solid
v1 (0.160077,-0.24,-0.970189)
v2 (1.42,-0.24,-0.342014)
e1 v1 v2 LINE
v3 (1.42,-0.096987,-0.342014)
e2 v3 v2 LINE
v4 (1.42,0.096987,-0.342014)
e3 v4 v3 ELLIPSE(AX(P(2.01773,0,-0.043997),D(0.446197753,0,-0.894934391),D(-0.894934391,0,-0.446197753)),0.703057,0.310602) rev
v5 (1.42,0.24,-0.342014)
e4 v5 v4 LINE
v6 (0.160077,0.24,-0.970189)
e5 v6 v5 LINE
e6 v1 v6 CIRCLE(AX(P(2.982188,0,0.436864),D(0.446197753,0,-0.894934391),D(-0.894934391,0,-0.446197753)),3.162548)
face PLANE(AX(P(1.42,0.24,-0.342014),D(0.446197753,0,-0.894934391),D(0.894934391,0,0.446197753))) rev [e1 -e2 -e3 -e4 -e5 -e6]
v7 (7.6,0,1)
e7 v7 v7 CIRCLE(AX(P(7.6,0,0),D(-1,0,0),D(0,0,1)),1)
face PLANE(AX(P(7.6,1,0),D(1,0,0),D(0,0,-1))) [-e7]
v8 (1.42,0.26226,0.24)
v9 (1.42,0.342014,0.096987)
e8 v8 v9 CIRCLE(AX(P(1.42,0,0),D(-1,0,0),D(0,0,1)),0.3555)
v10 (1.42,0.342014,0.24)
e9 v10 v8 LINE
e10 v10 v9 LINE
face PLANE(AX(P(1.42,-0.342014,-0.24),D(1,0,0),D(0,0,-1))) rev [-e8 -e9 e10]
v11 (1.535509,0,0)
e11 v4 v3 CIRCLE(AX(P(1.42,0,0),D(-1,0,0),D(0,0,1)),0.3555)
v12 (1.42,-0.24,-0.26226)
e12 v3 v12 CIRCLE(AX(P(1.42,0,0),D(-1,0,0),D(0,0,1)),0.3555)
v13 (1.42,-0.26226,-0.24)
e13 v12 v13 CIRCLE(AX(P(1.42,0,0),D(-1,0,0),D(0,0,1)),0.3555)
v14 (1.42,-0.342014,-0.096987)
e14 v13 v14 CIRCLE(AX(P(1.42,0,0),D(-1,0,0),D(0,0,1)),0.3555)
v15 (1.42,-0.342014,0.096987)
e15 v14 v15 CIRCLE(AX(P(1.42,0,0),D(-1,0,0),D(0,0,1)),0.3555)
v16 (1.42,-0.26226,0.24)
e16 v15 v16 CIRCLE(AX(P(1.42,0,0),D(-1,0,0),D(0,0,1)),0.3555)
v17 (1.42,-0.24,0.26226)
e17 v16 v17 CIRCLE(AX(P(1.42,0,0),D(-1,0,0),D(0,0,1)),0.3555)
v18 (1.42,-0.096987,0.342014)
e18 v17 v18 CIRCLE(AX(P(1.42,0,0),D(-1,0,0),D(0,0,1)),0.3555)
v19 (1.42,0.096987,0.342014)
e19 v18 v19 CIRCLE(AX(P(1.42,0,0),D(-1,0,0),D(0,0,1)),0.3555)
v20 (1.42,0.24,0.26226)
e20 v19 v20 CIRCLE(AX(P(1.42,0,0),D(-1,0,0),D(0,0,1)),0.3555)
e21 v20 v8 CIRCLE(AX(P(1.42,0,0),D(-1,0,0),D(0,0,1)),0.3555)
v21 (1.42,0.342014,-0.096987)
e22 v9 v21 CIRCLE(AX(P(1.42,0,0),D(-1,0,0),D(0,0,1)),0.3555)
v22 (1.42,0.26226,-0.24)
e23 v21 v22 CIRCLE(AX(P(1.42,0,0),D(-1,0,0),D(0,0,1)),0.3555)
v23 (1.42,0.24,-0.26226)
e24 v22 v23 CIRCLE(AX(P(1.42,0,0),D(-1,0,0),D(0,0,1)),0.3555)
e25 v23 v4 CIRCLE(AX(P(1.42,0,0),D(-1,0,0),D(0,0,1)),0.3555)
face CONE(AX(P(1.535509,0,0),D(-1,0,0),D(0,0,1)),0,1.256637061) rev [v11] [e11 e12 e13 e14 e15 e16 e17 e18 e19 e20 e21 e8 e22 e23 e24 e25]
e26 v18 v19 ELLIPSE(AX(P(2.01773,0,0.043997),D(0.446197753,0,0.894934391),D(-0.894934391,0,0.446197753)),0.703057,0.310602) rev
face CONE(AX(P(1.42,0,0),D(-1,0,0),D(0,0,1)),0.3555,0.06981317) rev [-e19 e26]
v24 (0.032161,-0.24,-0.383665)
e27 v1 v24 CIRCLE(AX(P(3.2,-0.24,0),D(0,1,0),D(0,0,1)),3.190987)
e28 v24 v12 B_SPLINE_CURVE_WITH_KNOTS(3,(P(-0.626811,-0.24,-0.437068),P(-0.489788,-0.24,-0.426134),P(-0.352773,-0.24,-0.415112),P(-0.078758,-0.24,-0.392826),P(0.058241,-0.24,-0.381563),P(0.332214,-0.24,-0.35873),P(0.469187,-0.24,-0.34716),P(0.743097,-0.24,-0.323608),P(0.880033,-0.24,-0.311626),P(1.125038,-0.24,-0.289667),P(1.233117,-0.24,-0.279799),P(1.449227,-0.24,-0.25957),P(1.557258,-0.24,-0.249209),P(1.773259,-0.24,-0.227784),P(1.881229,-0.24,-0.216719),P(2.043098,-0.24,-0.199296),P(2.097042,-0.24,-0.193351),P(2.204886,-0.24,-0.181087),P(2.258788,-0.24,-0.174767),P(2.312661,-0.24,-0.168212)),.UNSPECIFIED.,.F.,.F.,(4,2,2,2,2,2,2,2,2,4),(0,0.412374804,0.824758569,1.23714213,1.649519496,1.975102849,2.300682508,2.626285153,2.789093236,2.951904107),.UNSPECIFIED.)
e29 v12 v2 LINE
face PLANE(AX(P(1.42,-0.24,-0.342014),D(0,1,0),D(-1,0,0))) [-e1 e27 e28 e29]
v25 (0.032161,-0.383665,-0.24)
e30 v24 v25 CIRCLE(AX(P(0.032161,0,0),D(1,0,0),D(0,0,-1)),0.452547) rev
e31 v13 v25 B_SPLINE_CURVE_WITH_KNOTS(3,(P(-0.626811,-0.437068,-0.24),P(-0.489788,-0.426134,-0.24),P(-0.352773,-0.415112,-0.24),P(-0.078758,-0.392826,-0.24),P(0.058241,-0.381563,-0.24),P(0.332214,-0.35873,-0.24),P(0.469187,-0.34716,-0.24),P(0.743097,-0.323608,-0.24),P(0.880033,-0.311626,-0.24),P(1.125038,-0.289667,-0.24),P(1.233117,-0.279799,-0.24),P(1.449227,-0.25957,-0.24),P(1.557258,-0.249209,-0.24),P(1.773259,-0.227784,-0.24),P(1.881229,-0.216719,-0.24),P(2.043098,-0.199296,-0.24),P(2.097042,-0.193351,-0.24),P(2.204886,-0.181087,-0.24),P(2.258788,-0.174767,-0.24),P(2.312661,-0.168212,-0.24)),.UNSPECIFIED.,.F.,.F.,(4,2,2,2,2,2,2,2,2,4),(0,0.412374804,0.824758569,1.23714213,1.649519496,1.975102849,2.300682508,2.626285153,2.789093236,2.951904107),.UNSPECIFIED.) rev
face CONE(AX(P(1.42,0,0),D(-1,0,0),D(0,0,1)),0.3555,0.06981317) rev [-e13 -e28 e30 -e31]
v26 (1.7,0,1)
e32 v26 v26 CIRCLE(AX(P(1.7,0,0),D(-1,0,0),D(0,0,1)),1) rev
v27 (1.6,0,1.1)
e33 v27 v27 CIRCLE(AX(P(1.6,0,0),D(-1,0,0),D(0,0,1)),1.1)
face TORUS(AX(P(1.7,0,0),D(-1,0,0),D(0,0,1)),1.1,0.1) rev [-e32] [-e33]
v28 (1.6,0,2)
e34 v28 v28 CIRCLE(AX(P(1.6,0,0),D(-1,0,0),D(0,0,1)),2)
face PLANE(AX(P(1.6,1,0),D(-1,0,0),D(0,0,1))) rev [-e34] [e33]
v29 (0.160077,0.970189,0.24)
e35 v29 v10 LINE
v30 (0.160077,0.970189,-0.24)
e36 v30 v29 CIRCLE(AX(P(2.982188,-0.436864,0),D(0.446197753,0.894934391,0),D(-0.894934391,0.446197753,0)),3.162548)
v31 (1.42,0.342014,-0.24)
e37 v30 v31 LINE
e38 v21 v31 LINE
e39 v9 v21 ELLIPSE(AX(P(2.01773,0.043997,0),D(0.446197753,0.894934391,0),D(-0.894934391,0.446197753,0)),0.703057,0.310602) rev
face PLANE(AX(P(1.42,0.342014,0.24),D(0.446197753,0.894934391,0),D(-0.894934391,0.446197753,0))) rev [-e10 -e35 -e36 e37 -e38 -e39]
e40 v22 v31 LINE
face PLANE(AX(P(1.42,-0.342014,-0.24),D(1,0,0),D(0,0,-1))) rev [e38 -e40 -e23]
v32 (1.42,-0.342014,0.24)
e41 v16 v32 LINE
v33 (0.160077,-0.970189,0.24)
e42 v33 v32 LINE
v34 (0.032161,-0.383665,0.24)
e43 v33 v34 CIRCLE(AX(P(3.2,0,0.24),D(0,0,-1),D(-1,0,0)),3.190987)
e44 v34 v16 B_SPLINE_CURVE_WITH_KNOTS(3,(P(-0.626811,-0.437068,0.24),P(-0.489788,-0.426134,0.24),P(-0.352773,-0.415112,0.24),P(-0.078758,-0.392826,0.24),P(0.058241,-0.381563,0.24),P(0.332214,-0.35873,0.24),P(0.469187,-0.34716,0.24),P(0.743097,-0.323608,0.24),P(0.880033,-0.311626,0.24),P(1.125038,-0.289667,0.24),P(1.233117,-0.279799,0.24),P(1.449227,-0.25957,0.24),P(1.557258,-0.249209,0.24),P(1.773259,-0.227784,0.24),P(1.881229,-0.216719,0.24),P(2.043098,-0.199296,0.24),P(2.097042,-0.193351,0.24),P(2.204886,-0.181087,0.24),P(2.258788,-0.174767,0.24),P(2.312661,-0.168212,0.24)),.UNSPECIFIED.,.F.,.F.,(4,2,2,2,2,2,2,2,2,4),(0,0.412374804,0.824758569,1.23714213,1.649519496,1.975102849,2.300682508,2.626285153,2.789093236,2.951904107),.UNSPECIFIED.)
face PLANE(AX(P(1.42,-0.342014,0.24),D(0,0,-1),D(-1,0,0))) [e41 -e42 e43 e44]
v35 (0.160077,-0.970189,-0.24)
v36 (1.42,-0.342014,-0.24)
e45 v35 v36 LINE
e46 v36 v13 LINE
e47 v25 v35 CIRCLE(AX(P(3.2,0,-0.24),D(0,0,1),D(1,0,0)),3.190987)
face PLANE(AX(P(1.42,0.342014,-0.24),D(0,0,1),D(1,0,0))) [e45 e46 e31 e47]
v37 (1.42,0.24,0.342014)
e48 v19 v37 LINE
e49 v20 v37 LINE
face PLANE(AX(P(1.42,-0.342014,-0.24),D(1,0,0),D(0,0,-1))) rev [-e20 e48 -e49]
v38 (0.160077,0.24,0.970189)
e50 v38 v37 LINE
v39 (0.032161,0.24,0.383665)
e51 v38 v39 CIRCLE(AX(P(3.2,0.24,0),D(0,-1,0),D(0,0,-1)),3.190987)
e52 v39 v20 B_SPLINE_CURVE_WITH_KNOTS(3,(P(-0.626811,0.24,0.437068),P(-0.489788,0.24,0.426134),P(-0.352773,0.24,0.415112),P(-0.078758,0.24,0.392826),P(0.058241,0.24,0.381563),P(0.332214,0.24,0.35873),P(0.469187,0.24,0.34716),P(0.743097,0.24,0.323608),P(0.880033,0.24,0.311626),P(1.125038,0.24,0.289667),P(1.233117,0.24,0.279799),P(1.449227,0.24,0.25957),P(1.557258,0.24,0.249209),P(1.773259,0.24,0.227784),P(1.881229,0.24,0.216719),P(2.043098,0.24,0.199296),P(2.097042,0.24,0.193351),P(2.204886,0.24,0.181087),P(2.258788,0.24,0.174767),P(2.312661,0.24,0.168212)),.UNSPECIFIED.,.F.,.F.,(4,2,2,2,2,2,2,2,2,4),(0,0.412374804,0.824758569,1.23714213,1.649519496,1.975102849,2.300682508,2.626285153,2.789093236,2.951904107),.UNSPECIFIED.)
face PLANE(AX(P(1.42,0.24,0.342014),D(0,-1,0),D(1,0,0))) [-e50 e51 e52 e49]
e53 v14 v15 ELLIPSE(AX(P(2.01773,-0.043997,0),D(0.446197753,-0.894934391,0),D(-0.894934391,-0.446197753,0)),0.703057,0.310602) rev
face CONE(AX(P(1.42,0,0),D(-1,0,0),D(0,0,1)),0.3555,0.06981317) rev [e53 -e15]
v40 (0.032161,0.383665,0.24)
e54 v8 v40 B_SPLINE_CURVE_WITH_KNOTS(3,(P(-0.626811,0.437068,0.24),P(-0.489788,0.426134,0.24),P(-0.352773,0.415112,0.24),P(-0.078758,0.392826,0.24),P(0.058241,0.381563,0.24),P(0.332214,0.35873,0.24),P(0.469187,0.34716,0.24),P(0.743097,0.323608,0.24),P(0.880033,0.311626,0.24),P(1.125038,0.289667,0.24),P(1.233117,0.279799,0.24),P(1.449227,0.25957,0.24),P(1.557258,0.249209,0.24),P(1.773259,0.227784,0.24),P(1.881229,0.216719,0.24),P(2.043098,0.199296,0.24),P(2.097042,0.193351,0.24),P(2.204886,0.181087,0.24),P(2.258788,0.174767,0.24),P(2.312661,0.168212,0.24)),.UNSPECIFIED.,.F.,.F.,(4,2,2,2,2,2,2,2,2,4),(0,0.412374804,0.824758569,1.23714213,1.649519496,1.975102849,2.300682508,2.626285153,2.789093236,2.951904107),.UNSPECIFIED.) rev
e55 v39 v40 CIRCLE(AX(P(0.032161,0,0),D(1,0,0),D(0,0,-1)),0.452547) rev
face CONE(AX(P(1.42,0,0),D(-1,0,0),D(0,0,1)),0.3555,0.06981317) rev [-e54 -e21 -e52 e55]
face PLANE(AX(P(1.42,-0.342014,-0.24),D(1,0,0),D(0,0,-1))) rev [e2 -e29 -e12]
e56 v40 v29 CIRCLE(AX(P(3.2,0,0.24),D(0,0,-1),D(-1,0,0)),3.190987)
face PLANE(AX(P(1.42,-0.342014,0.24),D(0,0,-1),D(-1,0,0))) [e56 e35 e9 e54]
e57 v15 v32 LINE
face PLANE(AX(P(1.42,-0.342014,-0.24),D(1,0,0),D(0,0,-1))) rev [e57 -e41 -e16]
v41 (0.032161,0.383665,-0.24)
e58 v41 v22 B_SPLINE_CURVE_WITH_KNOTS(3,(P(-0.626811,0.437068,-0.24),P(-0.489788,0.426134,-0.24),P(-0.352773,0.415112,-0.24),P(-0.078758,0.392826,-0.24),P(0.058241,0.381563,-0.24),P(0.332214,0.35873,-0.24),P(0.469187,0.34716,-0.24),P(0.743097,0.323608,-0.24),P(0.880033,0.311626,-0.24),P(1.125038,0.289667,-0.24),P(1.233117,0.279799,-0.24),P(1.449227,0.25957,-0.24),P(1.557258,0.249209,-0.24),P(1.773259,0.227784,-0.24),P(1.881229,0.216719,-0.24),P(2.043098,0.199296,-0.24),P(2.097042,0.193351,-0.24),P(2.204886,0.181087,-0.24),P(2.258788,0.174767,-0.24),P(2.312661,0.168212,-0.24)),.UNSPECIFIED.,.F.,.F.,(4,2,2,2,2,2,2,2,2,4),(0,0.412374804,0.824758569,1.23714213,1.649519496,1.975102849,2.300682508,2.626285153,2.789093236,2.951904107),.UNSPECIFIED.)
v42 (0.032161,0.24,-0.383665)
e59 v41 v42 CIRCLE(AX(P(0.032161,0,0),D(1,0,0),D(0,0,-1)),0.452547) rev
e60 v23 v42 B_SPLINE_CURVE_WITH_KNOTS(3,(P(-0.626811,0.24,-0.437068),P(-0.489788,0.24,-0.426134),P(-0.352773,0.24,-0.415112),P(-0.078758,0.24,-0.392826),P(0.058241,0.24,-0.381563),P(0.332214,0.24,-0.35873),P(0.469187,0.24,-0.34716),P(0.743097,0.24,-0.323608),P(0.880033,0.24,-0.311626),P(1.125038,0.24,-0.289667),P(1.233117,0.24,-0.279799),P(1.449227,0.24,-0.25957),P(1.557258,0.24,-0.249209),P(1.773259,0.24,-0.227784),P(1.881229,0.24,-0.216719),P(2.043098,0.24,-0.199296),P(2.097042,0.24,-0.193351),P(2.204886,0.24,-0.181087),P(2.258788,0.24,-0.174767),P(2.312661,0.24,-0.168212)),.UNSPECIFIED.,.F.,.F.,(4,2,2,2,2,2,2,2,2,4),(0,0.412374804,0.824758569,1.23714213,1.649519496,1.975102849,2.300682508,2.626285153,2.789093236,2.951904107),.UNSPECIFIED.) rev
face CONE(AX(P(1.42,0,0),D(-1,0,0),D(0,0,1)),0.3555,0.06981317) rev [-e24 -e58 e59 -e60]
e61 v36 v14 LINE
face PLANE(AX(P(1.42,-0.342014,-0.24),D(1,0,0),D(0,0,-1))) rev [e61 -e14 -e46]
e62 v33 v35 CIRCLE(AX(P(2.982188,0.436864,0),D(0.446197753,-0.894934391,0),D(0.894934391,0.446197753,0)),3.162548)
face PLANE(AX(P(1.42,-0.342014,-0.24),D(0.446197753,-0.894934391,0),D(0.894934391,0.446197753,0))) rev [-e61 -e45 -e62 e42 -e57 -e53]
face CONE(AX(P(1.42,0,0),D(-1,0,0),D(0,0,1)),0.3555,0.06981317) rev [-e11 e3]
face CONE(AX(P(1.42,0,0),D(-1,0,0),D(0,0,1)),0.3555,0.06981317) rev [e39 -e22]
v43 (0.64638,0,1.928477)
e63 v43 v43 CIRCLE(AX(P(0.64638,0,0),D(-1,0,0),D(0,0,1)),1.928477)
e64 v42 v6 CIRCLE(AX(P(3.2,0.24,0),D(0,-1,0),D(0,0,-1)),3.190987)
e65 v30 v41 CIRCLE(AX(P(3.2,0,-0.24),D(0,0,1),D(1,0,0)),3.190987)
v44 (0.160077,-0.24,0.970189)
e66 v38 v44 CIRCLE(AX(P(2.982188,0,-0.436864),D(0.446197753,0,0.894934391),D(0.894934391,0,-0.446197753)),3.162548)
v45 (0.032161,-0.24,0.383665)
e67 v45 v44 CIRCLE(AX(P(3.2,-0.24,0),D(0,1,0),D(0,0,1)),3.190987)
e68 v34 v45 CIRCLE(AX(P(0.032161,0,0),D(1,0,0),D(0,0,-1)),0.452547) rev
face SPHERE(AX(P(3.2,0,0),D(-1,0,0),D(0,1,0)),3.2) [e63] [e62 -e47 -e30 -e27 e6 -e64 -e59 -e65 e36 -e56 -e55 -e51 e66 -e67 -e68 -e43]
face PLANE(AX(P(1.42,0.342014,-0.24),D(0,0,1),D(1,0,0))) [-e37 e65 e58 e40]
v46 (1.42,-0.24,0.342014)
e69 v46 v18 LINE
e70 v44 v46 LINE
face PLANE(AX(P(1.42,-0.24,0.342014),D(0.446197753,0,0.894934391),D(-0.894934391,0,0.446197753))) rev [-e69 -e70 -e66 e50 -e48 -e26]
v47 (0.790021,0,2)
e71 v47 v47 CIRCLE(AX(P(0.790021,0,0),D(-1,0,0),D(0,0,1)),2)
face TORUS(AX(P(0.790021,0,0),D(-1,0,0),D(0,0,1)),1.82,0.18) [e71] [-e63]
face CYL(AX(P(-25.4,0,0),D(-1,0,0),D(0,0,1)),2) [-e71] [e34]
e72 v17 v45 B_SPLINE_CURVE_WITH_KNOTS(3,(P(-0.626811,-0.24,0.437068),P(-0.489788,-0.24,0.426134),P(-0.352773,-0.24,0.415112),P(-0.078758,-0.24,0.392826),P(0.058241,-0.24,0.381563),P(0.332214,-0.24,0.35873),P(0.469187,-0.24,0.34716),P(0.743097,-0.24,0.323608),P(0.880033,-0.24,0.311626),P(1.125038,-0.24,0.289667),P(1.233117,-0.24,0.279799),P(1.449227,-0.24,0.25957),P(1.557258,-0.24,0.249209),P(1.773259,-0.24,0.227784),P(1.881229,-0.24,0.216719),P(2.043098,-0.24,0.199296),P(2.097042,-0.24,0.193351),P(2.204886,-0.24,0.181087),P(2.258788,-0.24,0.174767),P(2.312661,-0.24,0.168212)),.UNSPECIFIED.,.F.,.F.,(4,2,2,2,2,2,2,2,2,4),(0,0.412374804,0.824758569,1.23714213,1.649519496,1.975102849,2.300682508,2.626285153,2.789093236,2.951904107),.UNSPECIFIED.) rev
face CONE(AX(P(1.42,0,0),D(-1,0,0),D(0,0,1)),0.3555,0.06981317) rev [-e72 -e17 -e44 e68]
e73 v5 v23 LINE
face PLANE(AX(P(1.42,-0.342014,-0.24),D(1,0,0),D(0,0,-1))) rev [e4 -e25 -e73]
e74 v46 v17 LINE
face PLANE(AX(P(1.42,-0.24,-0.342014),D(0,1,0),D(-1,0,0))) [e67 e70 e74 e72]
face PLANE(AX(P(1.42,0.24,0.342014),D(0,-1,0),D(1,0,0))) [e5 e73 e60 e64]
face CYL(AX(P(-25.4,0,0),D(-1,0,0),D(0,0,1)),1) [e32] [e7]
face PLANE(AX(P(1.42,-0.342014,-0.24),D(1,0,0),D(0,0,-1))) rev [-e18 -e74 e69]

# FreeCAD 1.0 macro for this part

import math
import FreeCAD as App
import Part
import Sketcher

V = App.Vector
Q = App.Units.Quantity


def edges_at(feature, points):
    """Names of the edges that pass closest to the given points."""
    edges = feature.Shape.Edges
    near = lambda p: min(range(len(edges)), key=lambda i: edges[i].distToShape(Part.Vertex(*p))[0])
    return sorted({f"Edge{near(p) + 1}" for p in points})


def add_polygon(sketch, points):
    """Adds a closed chain of lines whose ends are joined by coincident constraints."""
    first, n = sketch.GeometryCount, len(points)
    for a, b in zip(points, points[1:] + points[:1]):
        sketch.addGeometry(Part.LineSegment(App.Vector(*a, 0), App.Vector(*b, 0)), False)
    for i in range(n):
        sketch.addConstraint(Sketcher.Constraint("Coincident", first + i, 2, first + (i + 1) % n, 1))

doc = App.newDocument("Part")
body = doc.addObject("PartDesign::Body", "Body")

sketch1 = body.newObject("Sketcher::SketchObject", "Sketch")
sketch1.AttachmentSupport = (doc.getObject("XY_Plane"), [""])
sketch1.MapMode = "FlatFace"
sketch1.addGeometry(Part.LineSegment(V(1.6, 1, 0), V(1.6, 2, 0)), False)
sketch1.addGeometry(Part.LineSegment(V(1.6, 2, 0), V(0.79, 2, 0)), False)
sketch1.addGeometry(Part.ArcOfCircle(Part.Circle(V(0.79, 1.82, 0), V(0, 0, 1), 0.18), math.radians(90), math.radians(143)), False)
sketch1.addGeometry(Part.ArcOfCircle(Part.Circle(V(3.2, 0, 0), V(0, 0, 1), 3.2), math.radians(143), math.radians(180)), False)
sketch1.addGeometry(Part.LineSegment(V(0, 0, 0), V(7.6, 0, 0)), False)
sketch1.addGeometry(Part.LineSegment(V(7.6, 0, 0), V(7.6, 1, 0)), False)
sketch1.addGeometry(Part.LineSegment(V(7.6, 1, 0), V(1.6, 1, 0)), False)
sketch1.addConstraint(Sketcher.Constraint("Coincident", 0, 2, 1, 1))
sketch1.addConstraint(Sketcher.Constraint("Tangent", 1, 2, 2, 1))
sketch1.addConstraint(Sketcher.Constraint("Tangent", 2, 2, 3, 1))
sketch1.addConstraint(Sketcher.Constraint("Coincident", 3, 2, 4, 1))
sketch1.addConstraint(Sketcher.Constraint("Coincident", 4, 2, 5, 1))
sketch1.addConstraint(Sketcher.Constraint("Coincident", 5, 2, 6, 1))
sketch1.addConstraint(Sketcher.Constraint("Coincident", 6, 2, 0, 1))
sketch1.addConstraint(Sketcher.Constraint("Vertical", 0))
sketch1.addConstraint(Sketcher.Constraint("Horizontal", 1))
sketch1.addConstraint(Sketcher.Constraint("Horizontal", 4))
sketch1.addConstraint(Sketcher.Constraint("Vertical", 5))
sketch1.addConstraint(Sketcher.Constraint("Horizontal", 6))
sketch1.addConstraint(Sketcher.Constraint("Coincident", 3, 2, -1, 1))
sketch1.addConstraint(Sketcher.Constraint("PointOnObject", 3, 3, -1))
sketch1.addConstraint(Sketcher.Constraint("Equal", 0, 5))
sketch1.addConstraint(Sketcher.Constraint("Radius", 3, 3.2))
sketch1.addConstraint(Sketcher.Constraint("DistanceX", 6, 2, 6, 1, 6.0))
sketch1.addConstraint(Sketcher.Constraint("DistanceY", 0, 1, 0, 2, 1.0))
sketch1.addConstraint(Sketcher.Constraint("Radius", 2, 0.18))
sketch1.addConstraint(Sketcher.Constraint("DistanceX", 4, 1, 4, 2, 7.6))
revolution = body.newObject("PartDesign::Revolution", "Revolution")
revolution.Profile = sketch1
revolution.ReferenceAxis = (sketch1, ["H_Axis"])
revolution.Angle = 360
doc.recompute()

fillet = body.newObject("PartDesign::Fillet", "Fillet")
fillet.Base = (revolution, edges_at(revolution, [(1.6, 0, -1)]))
fillet.Radius = 0.1

sketch2 = body.newObject("Sketcher::SketchObject", "Sketch001")
sketch2.AttachmentSupport = (doc.getObject("YZ_Plane"), [""])
sketch2.MapMode = "FlatFace"
add_polygon(sketch2, [(-1.05, 0.24), (-1.05, -0.24), (1.05, -0.24), (1.05, 0.24)])
sketch2.addConstraint(Sketcher.Constraint("Vertical", 0))
sketch2.addConstraint(Sketcher.Constraint("Horizontal", 1))
sketch2.addConstraint(Sketcher.Constraint("Vertical", 2))
sketch2.addConstraint(Sketcher.Constraint("Horizontal", 3))
sketch2.addConstraint(Sketcher.Constraint("Symmetric", 0, 2, 2, 2, -1, 1))
sketch2.addConstraint(Sketcher.Constraint("DistanceX", 1, 1, 1, 2, 2.1))
sketch2.addConstraint(Sketcher.Constraint("DistanceY", 0, 2, 0, 1, 0.48))

sketch3 = body.newObject("Sketcher::SketchObject", "Sketch002")
sketch3.AttachmentSupport = (doc.getObject("YZ_Plane"), [""])
sketch3.MapMode = "FlatFace"
sketch3.AttachmentOffset = App.Placement(V(0, 0, 1.42), App.Rotation())
add_polygon(sketch3, [(-0.34, 0.24), (-0.34, -0.24), (0.34, -0.24), (0.34, 0.24)])
sketch3.addConstraint(Sketcher.Constraint("Vertical", 0))
sketch3.addConstraint(Sketcher.Constraint("Horizontal", 1))
sketch3.addConstraint(Sketcher.Constraint("Vertical", 2))
sketch3.addConstraint(Sketcher.Constraint("Horizontal", 3))
sketch3.addConstraint(Sketcher.Constraint("Symmetric", 0, 2, 2, 2, -1, 1))
sketch3.addConstraint(Sketcher.Constraint("DistanceY", 0, 2, 0, 1, 0.48))
sketch3.addConstraint(Sketcher.Constraint("DistanceX", 1, 1, 1, 2, 0.684028))

subtractiveloft = body.newObject("PartDesign::SubtractiveLoft", "SubtractiveLoft")
subtractiveloft.Profile = sketch2
subtractiveloft.Sections = [sketch3]
doc.recompute()

polarpattern = body.newObject("PartDesign::PolarPattern", "PolarPattern")
polarpattern.Originals = [subtractiveloft]
polarpattern.Axis = (doc.getObject("X_Axis"), [""])
polarpattern.Angle = 90
polarpattern.Occurrences = 2
body.Tip = polarpattern

sketch4 = body.newObject("Sketcher::SketchObject", "Sketch003")
sketch4.AttachmentSupport = (doc.getObject("XY_Plane"), [""])
sketch4.MapMode = "FlatFace"
add_polygon(sketch4, [(0, 0.45), (0, 0), (1.54, 0), (1.42, 0.36)])
sketch4.addConstraint(Sketcher.Constraint("Vertical", 0))
sketch4.addConstraint(Sketcher.Constraint("Horizontal", 1))
sketch4.addConstraint(Sketcher.Constraint("Coincident", 0, 2, -1, 1))
sketch4.addConstraint(Sketcher.Constraint("Angle", 2, Q("108 deg")))
sketch4.addConstraint(Sketcher.Constraint("Angle", 3, Q("176 deg")))
sketch4.addConstraint(Sketcher.Constraint("DistanceX", -1, 1, 2, 2, 1.42))
sketch4.addConstraint(Sketcher.Constraint("DistanceX", 1, 1, 1, 2, 1.535509))
groove = body.newObject("PartDesign::Groove", "Groove")
groove.Profile = sketch4
groove.ReferenceAxis = (sketch4, ["H_Axis"])
groove.Angle = 360

doc.recompute()
